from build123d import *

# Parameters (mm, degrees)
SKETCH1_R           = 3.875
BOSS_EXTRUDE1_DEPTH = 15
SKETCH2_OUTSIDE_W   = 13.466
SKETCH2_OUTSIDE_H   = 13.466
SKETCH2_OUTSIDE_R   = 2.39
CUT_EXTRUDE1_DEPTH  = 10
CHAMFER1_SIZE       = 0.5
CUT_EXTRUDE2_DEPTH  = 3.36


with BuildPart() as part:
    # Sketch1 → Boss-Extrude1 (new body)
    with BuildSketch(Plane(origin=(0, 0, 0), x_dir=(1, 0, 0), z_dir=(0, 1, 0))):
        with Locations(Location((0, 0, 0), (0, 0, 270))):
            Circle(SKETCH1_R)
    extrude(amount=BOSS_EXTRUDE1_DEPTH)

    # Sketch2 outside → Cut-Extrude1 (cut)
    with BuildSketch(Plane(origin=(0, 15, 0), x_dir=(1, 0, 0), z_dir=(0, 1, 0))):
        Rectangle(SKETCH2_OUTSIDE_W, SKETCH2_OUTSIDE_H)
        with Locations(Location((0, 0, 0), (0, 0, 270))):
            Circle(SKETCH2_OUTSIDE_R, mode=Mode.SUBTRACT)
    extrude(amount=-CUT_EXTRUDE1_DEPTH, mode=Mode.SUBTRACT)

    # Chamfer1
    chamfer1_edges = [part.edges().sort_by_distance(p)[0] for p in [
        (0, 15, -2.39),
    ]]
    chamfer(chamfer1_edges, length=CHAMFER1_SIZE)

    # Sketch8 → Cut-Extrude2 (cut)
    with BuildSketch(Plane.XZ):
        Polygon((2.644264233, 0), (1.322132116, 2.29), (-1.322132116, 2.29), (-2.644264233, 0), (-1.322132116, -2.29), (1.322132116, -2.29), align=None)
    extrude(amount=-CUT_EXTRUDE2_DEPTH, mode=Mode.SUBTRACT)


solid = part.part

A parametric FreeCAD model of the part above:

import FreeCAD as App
import Part
import Sketcher

V = App.Vector
Q = App.Units.Quantity


def edges_at(feature, points):
    """Names of the edges that pass closest to the given points."""
    edges = feature.Shape.Edges
    near = lambda p: min(range(len(edges)), key=lambda i: edges[i].distToShape(Part.Vertex(*p))[0])
    return sorted({f"Edge{near(p) + 1}" for p in points})

doc = App.newDocument("Part")
body = doc.addObject("PartDesign::Body", "Body")

sketch1 = body.newObject("Sketcher::SketchObject", "Sketch")
sketch1.AttachmentSupport = (doc.getObject("XZ_Plane"), [""])
sketch1.MapMode = "FlatFace"
sketch1.addGeometry(Part.Circle(V(0, 0, 0), V(0, 0, 1), 3.9), False)
sketch1.addConstraint(Sketcher.Constraint("Coincident", 0, 3, -1, 1))
sketch1.addConstraint(Sketcher.Constraint("Diameter", 0, 7.75))
pad1 = body.newObject("PartDesign::Pad", "Pad")
pad1.Profile = sketch1
pad1.Length = 15
pad1.Reversed = True

sketch2 = body.newObject("Sketcher::SketchObject", "Sketch001")
sketch2.AttachmentSupport = (doc.getObject("XZ_Plane"), [""])
sketch2.MapMode = "FlatFace"
sketch2.AttachmentOffset = App.Placement(V(0, 0, -15), App.Rotation())
sketch2.addGeometry(Part.LineSegment(V(-6.7, -6.7, 0), V(-6.7, 6.7, 0)), False)
sketch2.addGeometry(Part.LineSegment(V(-6.7, 6.7, 0), V(6.7, 6.7, 0)), False)
sketch2.addGeometry(Part.LineSegment(V(6.7, 6.7, 0), V(6.7, -6.7, 0)), False)
sketch2.addGeometry(Part.LineSegment(V(6.7, -6.7, 0), V(-6.7, -6.7, 0)), False)
sketch2.addGeometry(Part.Circle(V(0, 0, 0), V(0, 0, 1), 2.4), False)
sketch2.addConstraint(Sketcher.Constraint("Coincident", 0, 2, 1, 1))
sketch2.addConstraint(Sketcher.Constraint("Coincident", 1, 2, 2, 1))
sketch2.addConstraint(Sketcher.Constraint("Coincident", 2, 2, 3, 1))
sketch2.addConstraint(Sketcher.Constraint("Coincident", 3, 2, 0, 1))
sketch2.addConstraint(Sketcher.Constraint("Vertical", 0))
sketch2.addConstraint(Sketcher.Constraint("Horizontal", 1))
sketch2.addConstraint(Sketcher.Constraint("Vertical", 2))
sketch2.addConstraint(Sketcher.Constraint("Horizontal", 3))
sketch2.addConstraint(Sketcher.Constraint("Coincident", 4, 3, -1, 1))
sketch2.addConstraint(Sketcher.Constraint("Symmetric", 0, 2, 2, 2, -1, 1))
sketch2.addConstraint(Sketcher.Constraint("Equal", 3, 0))
sketch2.addConstraint(Sketcher.Constraint("Diameter", 4, 4.78))
sketch2.addConstraint(Sketcher.Constraint("DistanceX", 1, 1, 1, 2, 13.466))
pocket1 = body.newObject("PartDesign::Pocket", "Pocket")
pocket1.Profile = sketch2
pocket1.Length = 10
pocket1.Reversed = True
doc.recompute()

chamfer = body.newObject("PartDesign::Chamfer", "Chamfer")
chamfer.Base = (pocket1, edges_at(pocket1, [(0, 15, -2.39)]))
chamfer.Size = 0.5

sketch3 = body.newObject("Sketcher::SketchObject", "Sketch002")
sketch3.AttachmentSupport = (doc.getObject("XZ_Plane"), [""])
sketch3.MapMode = "FlatFace"
sketch3.addGeometry(Part.LineSegment(V(2.6, 0, 0), V(1.3, 2.3, 0)), False)
sketch3.addGeometry(Part.LineSegment(V(1.3, 2.3, 0), V(-1.3, 2.3, 0)), False)
sketch3.addGeometry(Part.LineSegment(V(-1.3, 2.3, 0), V(-2.6, 0, 0)), False)
sketch3.addGeometry(Part.LineSegment(V(-2.6, 0, 0), V(-1.3, -2.3, 0)), False)
sketch3.addGeometry(Part.LineSegment(V(-1.3, -2.3, 0), V(1.3, -2.3, 0)), False)
sketch3.addGeometry(Part.LineSegment(V(1.3, -2.3, 0), V(2.6, 0, 0)), False)
sketch3.addConstraint(Sketcher.Constraint("Coincident", 0, 2, 1, 1))
sketch3.addConstraint(Sketcher.Constraint("Coincident", 1, 2, 2, 1))
sketch3.addConstraint(Sketcher.Constraint("Coincident", 2, 2, 3, 1))
sketch3.addConstraint(Sketcher.Constraint("Coincident", 3, 2, 4, 1))
sketch3.addConstraint(Sketcher.Constraint("Coincident", 4, 2, 5, 1))
sketch3.addConstraint(Sketcher.Constraint("Coincident", 5, 2, 0, 1))
sketch3.addConstraint(Sketcher.Constraint("Horizontal", 1))
sketch3.addConstraint(Sketcher.Constraint("Horizontal", 4))
sketch3.addConstraint(Sketcher.Constraint("Symmetric", 0, 2, 3, 2, -1, 1))
sketch3.addConstraint(Sketcher.Constraint("Symmetric", 2, 2, 5, 2, -1, 1))
sketch3.addConstraint(Sketcher.Constraint("PointOnObject", 2, 2, -1))
sketch3.addConstraint(Sketcher.Constraint("Parallel", 2, 5))
sketch3.addConstraint(Sketcher.Constraint("Vertical", 1, 2, 3, 2))
sketch3.addConstraint(Sketcher.Constraint("Angle", 0, Q("120 deg")))
sketch3.addConstraint(Sketcher.Constraint("DistanceY", -1, 1, 0, 2, 2.29))
sketch3.addConstraint(Sketcher.Constraint("DistanceX", 1, 2, 1, 1, 2.644264))
pocket2 = body.newObject("PartDesign::Pocket", "Pocket001")
pocket2.Profile = sketch3
pocket2.Length = 3.36

doc.recompute()
